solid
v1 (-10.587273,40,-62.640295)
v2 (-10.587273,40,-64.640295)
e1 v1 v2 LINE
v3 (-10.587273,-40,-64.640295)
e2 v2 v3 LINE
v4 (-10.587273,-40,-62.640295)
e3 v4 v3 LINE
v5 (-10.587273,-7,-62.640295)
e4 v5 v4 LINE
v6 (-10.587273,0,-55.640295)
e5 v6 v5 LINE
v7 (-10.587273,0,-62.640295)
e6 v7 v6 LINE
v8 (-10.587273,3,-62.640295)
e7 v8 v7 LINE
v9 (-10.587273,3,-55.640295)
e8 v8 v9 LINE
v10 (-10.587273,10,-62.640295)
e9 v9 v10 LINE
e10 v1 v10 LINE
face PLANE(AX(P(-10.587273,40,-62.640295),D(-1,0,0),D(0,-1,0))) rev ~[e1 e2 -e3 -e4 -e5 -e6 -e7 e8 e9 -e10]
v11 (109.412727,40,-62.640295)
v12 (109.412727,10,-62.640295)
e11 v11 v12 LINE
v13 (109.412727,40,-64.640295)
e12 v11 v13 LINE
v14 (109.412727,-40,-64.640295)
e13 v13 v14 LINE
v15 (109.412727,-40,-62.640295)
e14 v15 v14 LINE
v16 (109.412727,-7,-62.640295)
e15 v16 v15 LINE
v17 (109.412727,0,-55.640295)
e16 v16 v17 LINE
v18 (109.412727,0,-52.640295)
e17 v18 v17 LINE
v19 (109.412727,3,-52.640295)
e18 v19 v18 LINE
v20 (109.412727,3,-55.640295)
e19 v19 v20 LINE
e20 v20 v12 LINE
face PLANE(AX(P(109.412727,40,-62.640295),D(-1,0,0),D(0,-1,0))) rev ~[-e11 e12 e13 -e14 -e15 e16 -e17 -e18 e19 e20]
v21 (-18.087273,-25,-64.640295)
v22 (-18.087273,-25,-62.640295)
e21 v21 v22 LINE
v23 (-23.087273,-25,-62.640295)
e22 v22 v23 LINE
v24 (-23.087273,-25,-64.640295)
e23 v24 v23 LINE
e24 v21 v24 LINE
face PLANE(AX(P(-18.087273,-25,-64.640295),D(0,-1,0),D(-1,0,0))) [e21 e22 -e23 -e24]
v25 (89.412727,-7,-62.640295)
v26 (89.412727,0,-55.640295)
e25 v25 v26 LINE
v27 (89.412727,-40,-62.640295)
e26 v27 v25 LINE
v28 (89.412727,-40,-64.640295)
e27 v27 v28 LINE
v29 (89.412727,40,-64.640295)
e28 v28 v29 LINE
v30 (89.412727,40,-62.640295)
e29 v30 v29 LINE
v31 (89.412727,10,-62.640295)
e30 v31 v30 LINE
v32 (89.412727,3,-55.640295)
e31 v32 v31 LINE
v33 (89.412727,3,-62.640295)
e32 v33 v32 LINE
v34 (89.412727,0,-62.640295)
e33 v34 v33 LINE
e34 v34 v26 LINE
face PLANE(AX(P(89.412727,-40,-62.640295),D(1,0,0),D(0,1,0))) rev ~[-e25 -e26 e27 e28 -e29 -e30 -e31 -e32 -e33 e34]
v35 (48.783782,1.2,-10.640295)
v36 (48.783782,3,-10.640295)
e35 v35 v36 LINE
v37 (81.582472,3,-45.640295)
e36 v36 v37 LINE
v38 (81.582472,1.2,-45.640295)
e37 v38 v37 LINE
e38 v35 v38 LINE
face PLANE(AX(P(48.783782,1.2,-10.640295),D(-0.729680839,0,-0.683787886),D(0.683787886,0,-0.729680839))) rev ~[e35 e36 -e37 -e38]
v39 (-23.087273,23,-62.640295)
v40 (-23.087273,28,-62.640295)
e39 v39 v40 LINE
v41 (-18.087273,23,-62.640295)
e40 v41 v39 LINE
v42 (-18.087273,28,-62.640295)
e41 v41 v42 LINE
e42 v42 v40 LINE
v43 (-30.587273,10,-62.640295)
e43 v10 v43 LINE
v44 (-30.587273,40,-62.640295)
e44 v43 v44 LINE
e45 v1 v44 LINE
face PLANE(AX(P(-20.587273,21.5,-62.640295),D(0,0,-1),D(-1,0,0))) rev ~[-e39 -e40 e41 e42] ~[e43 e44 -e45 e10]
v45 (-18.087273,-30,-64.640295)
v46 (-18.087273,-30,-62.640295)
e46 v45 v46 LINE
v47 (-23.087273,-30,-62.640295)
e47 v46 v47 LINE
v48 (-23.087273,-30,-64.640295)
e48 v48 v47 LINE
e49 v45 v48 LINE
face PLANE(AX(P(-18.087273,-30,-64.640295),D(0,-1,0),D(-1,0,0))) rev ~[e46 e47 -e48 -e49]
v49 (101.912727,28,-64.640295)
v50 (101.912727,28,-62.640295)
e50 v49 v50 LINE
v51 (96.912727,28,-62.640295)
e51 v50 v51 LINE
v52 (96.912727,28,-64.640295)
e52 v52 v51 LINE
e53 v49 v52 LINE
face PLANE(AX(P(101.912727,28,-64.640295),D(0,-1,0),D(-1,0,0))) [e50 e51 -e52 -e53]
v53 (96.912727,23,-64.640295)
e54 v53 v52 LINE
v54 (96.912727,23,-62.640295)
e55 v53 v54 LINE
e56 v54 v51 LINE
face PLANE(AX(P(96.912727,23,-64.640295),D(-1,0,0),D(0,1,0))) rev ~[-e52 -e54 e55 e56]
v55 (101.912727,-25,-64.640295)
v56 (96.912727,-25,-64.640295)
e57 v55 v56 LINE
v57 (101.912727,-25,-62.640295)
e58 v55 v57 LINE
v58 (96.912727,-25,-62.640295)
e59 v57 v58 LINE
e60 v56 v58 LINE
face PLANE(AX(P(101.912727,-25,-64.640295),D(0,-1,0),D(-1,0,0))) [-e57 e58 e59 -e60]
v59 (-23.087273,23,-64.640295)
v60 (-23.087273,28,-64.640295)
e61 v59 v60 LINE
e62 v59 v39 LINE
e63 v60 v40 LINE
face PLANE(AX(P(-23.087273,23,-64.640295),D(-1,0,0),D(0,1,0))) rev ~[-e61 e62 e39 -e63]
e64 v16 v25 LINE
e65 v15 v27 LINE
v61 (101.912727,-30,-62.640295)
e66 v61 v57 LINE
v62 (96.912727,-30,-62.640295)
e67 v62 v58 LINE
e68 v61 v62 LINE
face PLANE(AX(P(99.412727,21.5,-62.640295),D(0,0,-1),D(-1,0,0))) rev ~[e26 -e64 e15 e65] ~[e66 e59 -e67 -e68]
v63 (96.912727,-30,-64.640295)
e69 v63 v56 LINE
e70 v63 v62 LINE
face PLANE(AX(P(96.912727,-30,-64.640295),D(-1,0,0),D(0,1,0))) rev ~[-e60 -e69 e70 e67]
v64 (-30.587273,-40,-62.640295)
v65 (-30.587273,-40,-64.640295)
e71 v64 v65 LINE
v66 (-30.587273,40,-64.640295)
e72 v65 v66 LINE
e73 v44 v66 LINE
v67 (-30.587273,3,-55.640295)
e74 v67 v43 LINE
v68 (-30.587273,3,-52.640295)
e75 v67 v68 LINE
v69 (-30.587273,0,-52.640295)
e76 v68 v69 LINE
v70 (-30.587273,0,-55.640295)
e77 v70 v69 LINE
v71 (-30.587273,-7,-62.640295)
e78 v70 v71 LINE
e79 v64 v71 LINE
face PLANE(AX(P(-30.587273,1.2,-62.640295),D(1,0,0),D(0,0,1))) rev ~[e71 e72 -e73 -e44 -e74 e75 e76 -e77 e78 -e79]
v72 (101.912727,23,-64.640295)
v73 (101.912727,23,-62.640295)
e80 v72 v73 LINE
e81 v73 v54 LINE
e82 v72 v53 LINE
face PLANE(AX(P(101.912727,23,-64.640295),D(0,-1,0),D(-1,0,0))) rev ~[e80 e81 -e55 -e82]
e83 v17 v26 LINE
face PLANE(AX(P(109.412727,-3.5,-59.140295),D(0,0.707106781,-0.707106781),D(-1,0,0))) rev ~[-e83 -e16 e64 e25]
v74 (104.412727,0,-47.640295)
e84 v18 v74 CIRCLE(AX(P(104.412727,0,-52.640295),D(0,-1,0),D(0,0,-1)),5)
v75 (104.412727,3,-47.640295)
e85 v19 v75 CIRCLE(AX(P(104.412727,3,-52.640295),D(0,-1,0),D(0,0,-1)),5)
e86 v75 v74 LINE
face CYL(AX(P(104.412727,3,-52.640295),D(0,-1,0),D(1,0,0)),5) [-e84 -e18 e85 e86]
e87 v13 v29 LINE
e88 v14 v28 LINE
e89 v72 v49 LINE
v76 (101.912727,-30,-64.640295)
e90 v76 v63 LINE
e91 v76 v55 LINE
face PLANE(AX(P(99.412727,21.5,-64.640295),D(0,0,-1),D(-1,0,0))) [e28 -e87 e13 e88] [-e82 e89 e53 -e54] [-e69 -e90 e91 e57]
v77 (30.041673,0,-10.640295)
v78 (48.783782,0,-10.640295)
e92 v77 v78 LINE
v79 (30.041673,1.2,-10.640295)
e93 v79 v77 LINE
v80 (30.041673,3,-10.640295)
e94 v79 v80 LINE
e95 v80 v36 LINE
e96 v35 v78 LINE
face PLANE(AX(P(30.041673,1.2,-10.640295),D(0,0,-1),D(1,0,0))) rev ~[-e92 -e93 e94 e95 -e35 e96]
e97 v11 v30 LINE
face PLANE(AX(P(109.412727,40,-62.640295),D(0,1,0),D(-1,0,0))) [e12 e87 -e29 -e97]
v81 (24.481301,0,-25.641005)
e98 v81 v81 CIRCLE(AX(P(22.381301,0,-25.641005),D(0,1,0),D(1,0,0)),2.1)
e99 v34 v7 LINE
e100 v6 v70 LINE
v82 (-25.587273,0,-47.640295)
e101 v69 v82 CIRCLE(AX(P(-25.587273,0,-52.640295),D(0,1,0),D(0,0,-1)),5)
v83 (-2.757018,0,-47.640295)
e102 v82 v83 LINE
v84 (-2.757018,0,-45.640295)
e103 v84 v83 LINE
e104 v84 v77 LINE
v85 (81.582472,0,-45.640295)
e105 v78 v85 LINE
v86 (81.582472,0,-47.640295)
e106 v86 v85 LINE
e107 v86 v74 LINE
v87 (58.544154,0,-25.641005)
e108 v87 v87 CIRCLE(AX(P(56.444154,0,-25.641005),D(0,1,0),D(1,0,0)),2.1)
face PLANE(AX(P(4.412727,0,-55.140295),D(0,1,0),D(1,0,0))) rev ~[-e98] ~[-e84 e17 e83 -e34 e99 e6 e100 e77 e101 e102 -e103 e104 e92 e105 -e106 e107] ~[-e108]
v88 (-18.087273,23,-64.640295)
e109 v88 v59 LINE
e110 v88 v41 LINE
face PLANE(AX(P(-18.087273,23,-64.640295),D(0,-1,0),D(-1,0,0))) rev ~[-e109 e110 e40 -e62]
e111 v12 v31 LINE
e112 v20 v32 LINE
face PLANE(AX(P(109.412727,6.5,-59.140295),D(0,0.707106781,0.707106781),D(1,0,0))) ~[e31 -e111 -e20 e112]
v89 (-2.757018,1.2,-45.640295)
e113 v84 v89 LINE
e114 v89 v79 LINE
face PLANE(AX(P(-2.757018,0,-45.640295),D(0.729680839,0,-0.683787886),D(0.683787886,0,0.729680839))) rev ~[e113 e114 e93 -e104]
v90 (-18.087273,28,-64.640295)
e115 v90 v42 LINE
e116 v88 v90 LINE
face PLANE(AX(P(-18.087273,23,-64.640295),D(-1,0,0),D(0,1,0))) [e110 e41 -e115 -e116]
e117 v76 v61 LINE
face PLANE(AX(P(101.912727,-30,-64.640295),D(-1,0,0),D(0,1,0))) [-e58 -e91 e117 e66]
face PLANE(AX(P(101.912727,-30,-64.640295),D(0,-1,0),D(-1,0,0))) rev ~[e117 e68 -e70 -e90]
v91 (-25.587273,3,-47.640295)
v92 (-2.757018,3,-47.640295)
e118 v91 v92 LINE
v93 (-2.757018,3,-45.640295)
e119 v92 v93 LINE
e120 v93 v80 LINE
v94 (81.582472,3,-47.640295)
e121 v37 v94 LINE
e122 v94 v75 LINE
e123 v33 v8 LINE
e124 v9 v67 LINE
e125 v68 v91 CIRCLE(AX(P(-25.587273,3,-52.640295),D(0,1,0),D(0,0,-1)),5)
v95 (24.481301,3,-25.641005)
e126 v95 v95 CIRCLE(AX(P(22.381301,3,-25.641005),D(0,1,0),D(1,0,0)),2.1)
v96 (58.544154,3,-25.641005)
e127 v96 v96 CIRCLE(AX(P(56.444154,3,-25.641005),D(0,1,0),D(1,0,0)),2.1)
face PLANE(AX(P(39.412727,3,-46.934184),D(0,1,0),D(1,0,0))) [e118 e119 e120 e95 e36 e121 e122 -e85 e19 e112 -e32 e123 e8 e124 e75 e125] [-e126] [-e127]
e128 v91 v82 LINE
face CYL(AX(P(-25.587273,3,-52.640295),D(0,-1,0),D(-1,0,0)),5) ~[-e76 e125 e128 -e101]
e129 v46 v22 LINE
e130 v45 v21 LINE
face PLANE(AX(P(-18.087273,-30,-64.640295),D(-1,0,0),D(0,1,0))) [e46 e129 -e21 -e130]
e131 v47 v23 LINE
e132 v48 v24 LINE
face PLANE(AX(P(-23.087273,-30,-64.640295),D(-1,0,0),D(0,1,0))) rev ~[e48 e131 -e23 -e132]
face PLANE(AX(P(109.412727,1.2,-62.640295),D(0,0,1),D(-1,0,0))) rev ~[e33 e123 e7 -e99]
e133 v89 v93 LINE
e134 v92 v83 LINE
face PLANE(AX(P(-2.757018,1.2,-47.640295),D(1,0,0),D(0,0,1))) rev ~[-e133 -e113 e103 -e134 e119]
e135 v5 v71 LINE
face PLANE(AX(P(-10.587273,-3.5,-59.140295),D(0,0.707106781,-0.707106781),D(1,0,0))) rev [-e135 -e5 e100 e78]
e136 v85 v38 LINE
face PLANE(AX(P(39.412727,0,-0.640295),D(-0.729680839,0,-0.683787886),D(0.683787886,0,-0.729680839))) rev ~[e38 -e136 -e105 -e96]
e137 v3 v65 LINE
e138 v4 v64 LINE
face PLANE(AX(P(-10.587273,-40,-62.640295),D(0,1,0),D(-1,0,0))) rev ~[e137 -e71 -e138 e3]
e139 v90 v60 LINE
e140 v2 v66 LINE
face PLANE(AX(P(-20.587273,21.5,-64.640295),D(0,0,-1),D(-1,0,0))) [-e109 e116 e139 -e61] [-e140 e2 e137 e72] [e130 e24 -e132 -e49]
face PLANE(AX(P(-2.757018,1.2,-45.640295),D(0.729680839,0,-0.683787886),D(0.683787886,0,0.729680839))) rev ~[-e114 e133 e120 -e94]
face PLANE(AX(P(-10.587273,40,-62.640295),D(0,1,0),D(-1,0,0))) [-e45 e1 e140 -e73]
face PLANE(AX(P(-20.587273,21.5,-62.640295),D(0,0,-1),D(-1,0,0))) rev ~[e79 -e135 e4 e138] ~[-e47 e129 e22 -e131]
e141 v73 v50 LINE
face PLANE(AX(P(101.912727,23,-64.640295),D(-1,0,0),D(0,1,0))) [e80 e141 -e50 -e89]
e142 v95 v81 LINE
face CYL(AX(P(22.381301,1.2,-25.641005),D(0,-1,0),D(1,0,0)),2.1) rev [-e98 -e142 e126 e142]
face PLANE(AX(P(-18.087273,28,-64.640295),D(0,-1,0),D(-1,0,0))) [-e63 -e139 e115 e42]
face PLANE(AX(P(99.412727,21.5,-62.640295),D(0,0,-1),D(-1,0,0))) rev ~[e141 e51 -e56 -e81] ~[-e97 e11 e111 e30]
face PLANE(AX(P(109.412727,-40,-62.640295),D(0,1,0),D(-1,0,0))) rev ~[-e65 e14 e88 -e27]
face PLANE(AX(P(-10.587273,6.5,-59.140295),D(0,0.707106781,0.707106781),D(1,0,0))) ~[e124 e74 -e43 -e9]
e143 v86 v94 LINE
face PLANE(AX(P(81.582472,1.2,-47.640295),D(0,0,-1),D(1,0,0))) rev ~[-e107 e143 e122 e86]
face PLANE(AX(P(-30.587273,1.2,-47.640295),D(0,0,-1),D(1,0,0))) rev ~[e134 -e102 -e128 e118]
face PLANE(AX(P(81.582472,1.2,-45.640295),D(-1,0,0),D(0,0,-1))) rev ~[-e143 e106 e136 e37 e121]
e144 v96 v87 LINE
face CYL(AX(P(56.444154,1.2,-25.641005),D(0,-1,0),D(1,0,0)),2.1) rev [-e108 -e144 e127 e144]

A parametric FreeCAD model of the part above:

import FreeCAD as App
import Part
import Sketcher


def edges_at(feature, points):
    """Names of the edges that pass closest to the given points."""
    edges = feature.Shape.Edges
    near = lambda p: min(range(len(edges)), key=lambda i: edges[i].distToShape(Part.Vertex(*p))[0])
    return sorted({f"Edge{near(p) + 1}" for p in points})

doc = App.newDocument("Part")
body = doc.addObject("PartDesign::Body", "Body")

# Sketch on XZ plane
sketch1 = doc.addObject("Sketcher::SketchObject", "Sketch")
body.addObject(sketch1)
sketch1.AttachmentSupport = (doc.XZ_Plane, [""])
sketch1.MapMode = "FlatFace"
sketch1.addGeometry(Part.LineSegment(App.Vector(-2.757018, -47.640295, 0), App.Vector(-2.757018, -45.640295, 0)), False)
sketch1.addGeometry(Part.LineSegment(App.Vector(-2.757018, -45.640295, 0), App.Vector(39.412727, -0.640295, 0)), False)
sketch1.addGeometry(Part.LineSegment(App.Vector(39.412727, -0.640295, 0), App.Vector(81.582472, -45.640295, 0)), False)
sketch1.addGeometry(Part.LineSegment(App.Vector(81.582472, -45.640295, 0), App.Vector(81.582472, -47.640295, 0)), False)
sketch1.addGeometry(Part.LineSegment(App.Vector(81.582472, -47.640295, 0), App.Vector(-2.757018, -47.640295, 0)), False)
sketch1.addGeometry(Part.Circle(App.Vector(22.381301, -25.641005, 0), App.Vector(0, 0, 1), 2.1), False)
sketch1.addGeometry(Part.Circle(App.Vector(56.444154, -25.641005, 0), App.Vector(0, 0, 1), 2.1), False)
sketch1.addConstraint(Sketcher.Constraint("Coincident", 0, 2, 1, 1))
sketch1.addConstraint(Sketcher.Constraint("Coincident", 1, 2, 2, 1))
sketch1.addConstraint(Sketcher.Constraint("Coincident", 2, 2, 3, 1))
sketch1.addConstraint(Sketcher.Constraint("Coincident", 3, 2, 4, 1))
sketch1.addConstraint(Sketcher.Constraint("Coincident", 4, 2, 0, 1))
sketch1.addConstraint(Sketcher.Constraint("Vertical", 0))
sketch1.addConstraint(Sketcher.Constraint("Vertical", 3))
sketch1.addConstraint(Sketcher.Constraint("Horizontal", 4))
sketch1.addConstraint(Sketcher.Constraint("Equal", 5, 6))
sketch1.addConstraint(Sketcher.Constraint("Horizontal", 5, 3, 6, 3))
sketch1.addConstraint(Sketcher.Constraint("Horizontal", 0, 2, 2, 2))
sketch1.addConstraint(Sketcher.Constraint("Equal", 1, 2))
sketch1.addConstraint(Sketcher.Constraint("Diameter", 5, 4.2))
sketch1.addConstraint(Sketcher.Constraint("DistanceY", 0, 1, 0, 2, 2.0))
sketch1.addConstraint(Sketcher.Constraint("DistanceY", 0, 2, 1, 2, 45.0))
sketch1.addConstraint(Sketcher.Constraint("Distance", 1, 61.670799))
sketch1.addConstraint(Sketcher.Constraint("DistanceX", -1, 1, 5, 3, 22.381301))
sketch1.addConstraint(Sketcher.Constraint("DistanceX", 0, 2, 5, 3, 25.138318))
sketch1.addConstraint(Sketcher.Constraint("DistanceY", 0, 2, 5, 3, 19.99929))
sketch1.addConstraint(Sketcher.Constraint("DistanceX", 0, 2, 6, 3, 59.201172))
sketch1.addConstraint(Sketcher.Constraint("DistanceY", 5, 3, -1, 1, 25.641005))
pad1 = doc.addObject("PartDesign::Pad", "Pad")
body.addObject(pad1)
pad1.Profile = sketch1
pad1.Length = 1.2
pad1.Reversed = True

# Sketch on XZ plane
sketch2 = doc.addObject("Sketcher::SketchObject", "Sketch001")
body.addObject(sketch2)
sketch2.AttachmentSupport = (doc.XZ_Plane, [""])
sketch2.MapMode = "FlatFace"
sketch2.addGeometry(Part.LineSegment(App.Vector(81.582472, -47.640295, 0), App.Vector(81.582472, -45.640295, 0)), False)
sketch2.addGeometry(Part.LineSegment(App.Vector(81.582472, -45.640295, 0), App.Vector(-2.757018, -45.640295, 0)), False)
sketch2.addGeometry(Part.LineSegment(App.Vector(-2.757018, -45.640295, 0), App.Vector(-2.757018, -47.640295, 0)), False)
sketch2.addGeometry(Part.LineSegment(App.Vector(-2.757018, -47.640295, 0), App.Vector(81.582472, -47.640295, 0)), False)
sketch2.addConstraint(Sketcher.Constraint("Coincident", 0, 2, 1, 1))
sketch2.addConstraint(Sketcher.Constraint("Coincident", 1, 2, 2, 1))
sketch2.addConstraint(Sketcher.Constraint("Coincident", 2, 2, 3, 1))
sketch2.addConstraint(Sketcher.Constraint("Coincident", 3, 2, 0, 1))
sketch2.addConstraint(Sketcher.Constraint("Vertical", 0))
sketch2.addConstraint(Sketcher.Constraint("Horizontal", 1))
sketch2.addConstraint(Sketcher.Constraint("Vertical", 2))
sketch2.addConstraint(Sketcher.Constraint("Horizontal", 3))
sketch2.addConstraint(Sketcher.Constraint("DistanceY", 0, 1, 0, 2, 2.0))
sketch2.addConstraint(Sketcher.Constraint("DistanceX", 1, 2, 1, 1, 84.33949))
sketch2.addConstraint(Sketcher.Constraint("DistanceX", -1, 1, 0, 2, 81.582472))
sketch2.addConstraint(Sketcher.Constraint("DistanceY", 0, 2, -1, 1, 45.640295))
pad2 = doc.addObject("PartDesign::Pad", "Pad001")
body.addObject(pad2)
pad2.Profile = sketch2
pad2.Length = 2.4

# Sketch on XZ plane
sketch3 = doc.addObject("Sketcher::SketchObject", "Sketch002")
body.addObject(sketch3)
sketch3.AttachmentSupport = (doc.XZ_Plane, [""])
sketch3.MapMode = "FlatFace"
sketch3.AttachmentOffset = App.Placement(App.Vector(0, 0, 2.4), App.Rotation())
sketch3.addGeometry(Part.LineSegment(App.Vector(-2.757018, -47.640295, 0), App.Vector(81.582472, -47.640295, 0)), False)
sketch3.addGeometry(Part.LineSegment(App.Vector(81.582472, -47.640295, 0), App.Vector(81.582472, -45.640295, 0)), False)
sketch3.addGeometry(Part.LineSegment(App.Vector(81.582472, -45.640295, 0), App.Vector(39.412727, -0.640295, 0)), False)
sketch3.addGeometry(Part.LineSegment(App.Vector(39.412727, -0.640295, 0), App.Vector(-2.757018, -45.640295, 0)), False)
sketch3.addGeometry(Part.LineSegment(App.Vector(-2.757018, -45.640295, 0), App.Vector(-2.757018, -47.640295, 0)), False)
sketch3.addGeometry(Part.Circle(App.Vector(56.444154, -25.641005, 0), App.Vector(0, 0, 1), 2.1), False)
sketch3.addGeometry(Part.Circle(App.Vector(22.381301, -25.641005, 0), App.Vector(0, 0, 1), 2.1), False)
sketch3.addConstraint(Sketcher.Constraint("Coincident", 0, 2, 1, 1))
sketch3.addConstraint(Sketcher.Constraint("Coincident", 1, 2, 2, 1))
sketch3.addConstraint(Sketcher.Constraint("Coincident", 2, 2, 3, 1))
sketch3.addConstraint(Sketcher.Constraint("Coincident", 3, 2, 4, 1))
sketch3.addConstraint(Sketcher.Constraint("Coincident", 4, 2, 0, 1))
sketch3.addConstraint(Sketcher.Constraint("Horizontal", 0))
sketch3.addConstraint(Sketcher.Constraint("Vertical", 1))
sketch3.addConstraint(Sketcher.Constraint("Vertical", 4))
sketch3.addConstraint(Sketcher.Constraint("Equal", 5, 6))
sketch3.addConstraint(Sketcher.Constraint("Horizontal", 5, 3, 6, 3))
sketch3.addConstraint(Sketcher.Constraint("Horizontal", 1, 2, 3, 2))
sketch3.addConstraint(Sketcher.Constraint("Equal", 2, 3))
sketch3.addConstraint(Sketcher.Constraint("Diameter", 5, 4.2))
sketch3.addConstraint(Sketcher.Constraint("DistanceY", 1, 1, 1, 2, 2.0))
sketch3.addConstraint(Sketcher.Constraint("DistanceY", 1, 2, 2, 2, 45.0))
sketch3.addConstraint(Sketcher.Constraint("Distance", 2, 61.670799))
sketch3.addConstraint(Sketcher.Constraint("DistanceX", -1, 1, 6, 3, 22.381301))
sketch3.addConstraint(Sketcher.Constraint("DistanceX", 5, 3, 0, 2, 25.138318))
sketch3.addConstraint(Sketcher.Constraint("DistanceY", 0, 2, 5, 3, 21.99929))
sketch3.addConstraint(Sketcher.Constraint("DistanceX", 6, 3, 0, 2, 59.201172))
sketch3.addConstraint(Sketcher.Constraint("DistanceY", 5, 3, -1, 1, 25.641005))
pad3 = doc.addObject("PartDesign::Pad", "Pad002")
body.addObject(pad3)
pad3.Profile = sketch3
pad3.Length = 1.2

# Sketch on XZ plane
sketch4 = doc.addObject("Sketcher::SketchObject", "Sketch003")
body.addObject(sketch4)
sketch4.AttachmentSupport = (doc.XZ_Plane, [""])
sketch4.MapMode = "FlatFace"
sketch4.AttachmentOffset = App.Placement(App.Vector(0, 0, 3.6), App.Rotation())
sketch4.addGeometry(Part.LineSegment(App.Vector(88.819585, -55.471178, 0), App.Vector(88.819585, 5.18127, 0)), False)
sketch4.addGeometry(Part.LineSegment(App.Vector(88.819585, 5.18127, 0), App.Vector(-15.248217, 5.18127, 0)), False)
sketch4.addGeometry(Part.LineSegment(App.Vector(-15.248217, 5.18127, 0), App.Vector(-15.248217, -55.471178, 0)), False)
sketch4.addGeometry(Part.LineSegment(App.Vector(-15.248217, -55.471178, 0), App.Vector(88.819585, -55.471178, 0)), False)
sketch4.addConstraint(Sketcher.Constraint("Coincident", 0, 2, 1, 1))
sketch4.addConstraint(Sketcher.Constraint("Coincident", 1, 2, 2, 1))
sketch4.addConstraint(Sketcher.Constraint("Coincident", 2, 2, 3, 1))
sketch4.addConstraint(Sketcher.Constraint("Coincident", 3, 2, 0, 1))
sketch4.addConstraint(Sketcher.Constraint("Vertical", 0))
sketch4.addConstraint(Sketcher.Constraint("Horizontal", 1))
sketch4.addConstraint(Sketcher.Constraint("Vertical", 2))
sketch4.addConstraint(Sketcher.Constraint("Horizontal", 3))
sketch4.addConstraint(Sketcher.Constraint("DistanceX", 1, 2, 1, 1, 104.067802))
sketch4.addConstraint(Sketcher.Constraint("DistanceY", 0, 1, 0, 2, 60.652448))
sketch4.addConstraint(Sketcher.Constraint("DistanceY", -1, 1, 0, 2, 5.18127))
sketch4.addConstraint(Sketcher.Constraint("DistanceX", -1, 1, 0, 2, 88.819585))
pocket1 = doc.addObject("PartDesign::Pocket", "Pocket")
body.addObject(pocket1)
pocket1.Profile = sketch4
pocket1.Length = 3.6

# Sketch on XZ plane
sketch5 = doc.addObject("Sketcher::SketchObject", "Sketch004")
body.addObject(sketch5)
sketch5.AttachmentSupport = (doc.XZ_Plane, [""])
sketch5.MapMode = "FlatFace"
sketch5.AttachmentOffset = App.Placement(App.Vector(0, 0, -1.2), App.Rotation())
sketch5.addGeometry(Part.LineSegment(App.Vector(-30.587273, -62.640295, 0), App.Vector(-30.587273, -47.640295, 0)), False)
sketch5.addGeometry(Part.LineSegment(App.Vector(-30.587273, -47.640295, 0), App.Vector(109.412727, -47.640295, 0)), False)
sketch5.addGeometry(Part.LineSegment(App.Vector(109.412727, -47.640295, 0), App.Vector(109.412727, -62.640295, 0)), False)
sketch5.addGeometry(Part.LineSegment(App.Vector(109.412727, -62.640295, 0), App.Vector(-30.587273, -62.640295, 0)), False)
sketch5.addConstraint(Sketcher.Constraint("Coincident", 0, 2, 1, 1))
sketch5.addConstraint(Sketcher.Constraint("Coincident", 1, 2, 2, 1))
sketch5.addConstraint(Sketcher.Constraint("Coincident", 2, 2, 3, 1))
sketch5.addConstraint(Sketcher.Constraint("Coincident", 3, 2, 0, 1))
sketch5.addConstraint(Sketcher.Constraint("Vertical", 0))
sketch5.addConstraint(Sketcher.Constraint("Horizontal", 1))
sketch5.addConstraint(Sketcher.Constraint("Vertical", 2))
sketch5.addConstraint(Sketcher.Constraint("Horizontal", 3))
sketch5.addConstraint(Sketcher.Constraint("DistanceX", 1, 1, 1, 2, 140.0))
sketch5.addConstraint(Sketcher.Constraint("DistanceY", 0, 1, 0, 2, 15.0))
sketch5.addConstraint(Sketcher.Constraint("DistanceX", 0, 2, -1, 1, 30.587273))
sketch5.addConstraint(Sketcher.Constraint("DistanceY", 0, 2, -1, 1, 47.640295))
pad4 = doc.addObject("PartDesign::Pad", "Pad003")
body.addObject(pad4)
pad4.Profile = sketch5
pad4.Length = 1.2

# Sketch on XZ plane
sketch6 = doc.addObject("Sketcher::SketchObject", "Sketch005")
body.addObject(sketch6)
sketch6.AttachmentSupport = (doc.XZ_Plane, [""])
sketch6.MapMode = "FlatFace"
sketch6.AttachmentOffset = App.Placement(App.Vector(0, 0, -1.2), App.Rotation())
sketch6.addGeometry(Part.LineSegment(App.Vector(48.783782, -10.640295, 0), App.Vector(30.041673, -10.640295, 0)), False)
sketch6.addGeometry(Part.LineSegment(App.Vector(30.041673, -10.640295, 0), App.Vector(39.412727, -0.640295, 0)), False)
sketch6.addGeometry(Part.LineSegment(App.Vector(39.412727, -0.640295, 0), App.Vector(48.783782, -10.640295, 0)), False)
sketch6.addConstraint(Sketcher.Constraint("Coincident", 0, 2, 1, 1))
sketch6.addConstraint(Sketcher.Constraint("Coincident", 1, 2, 2, 1))
sketch6.addConstraint(Sketcher.Constraint("Coincident", 2, 2, 0, 1))
sketch6.addConstraint(Sketcher.Constraint("Horizontal", 0))
sketch6.addConstraint(Sketcher.Constraint("Equal", 1, 2))
sketch6.addConstraint(Sketcher.Constraint("DistanceY", 0, 2, 1, 2, 10.0))
sketch6.addConstraint(Sketcher.Constraint("DistanceX", 0, 2, 0, 1, 18.742109))
sketch6.addConstraint(Sketcher.Constraint("DistanceX", -1, 1, 2, 2, 48.783782))
sketch6.addConstraint(Sketcher.Constraint("DistanceY", 0, 2, -1, 1, 10.640295))
pocket2 = doc.addObject("PartDesign::Pocket", "Pocket001")
body.addObject(pocket2)
pocket2.Profile = sketch6
pocket2.Length = 10
pocket2.Reversed = True

# Sketch on XZ plane
sketch7 = doc.addObject("Sketcher::SketchObject", "Sketch006")
body.addObject(sketch7)
sketch7.AttachmentSupport = (doc.XZ_Plane, [""])
sketch7.MapMode = "FlatFace"
sketch7.AttachmentOffset = App.Placement(App.Vector(0, 0, -1.2), App.Rotation())
sketch7.addGeometry(Part.LineSegment(App.Vector(-2.757018, -47.640295, 0), App.Vector(-2.757018, -45.640295, 0)), False)
sketch7.addGeometry(Part.LineSegment(App.Vector(-2.757018, -45.640295, 0), App.Vector(30.041673, -10.640295, 0)), False)
sketch7.addGeometry(Part.LineSegment(App.Vector(30.041673, -10.640295, 0), App.Vector(48.783782, -10.640295, 0)), False)
sketch7.addGeometry(Part.LineSegment(App.Vector(48.783782, -10.640295, 0), App.Vector(81.582472, -45.640295, 0)), False)
sketch7.addGeometry(Part.LineSegment(App.Vector(81.582472, -45.640295, 0), App.Vector(81.582472, -47.640295, 0)), False)
sketch7.addGeometry(Part.LineSegment(App.Vector(81.582472, -47.640295, 0), App.Vector(109.412727, -47.640295, 0)), False)
sketch7.addGeometry(Part.LineSegment(App.Vector(109.412727, -47.640295, 0), App.Vector(109.412727, -62.640295, 0)), False)
sketch7.addGeometry(Part.LineSegment(App.Vector(109.412727, -62.640295, 0), App.Vector(-30.587273, -62.640295, 0)), False)
sketch7.addGeometry(Part.LineSegment(App.Vector(-30.587273, -62.640295, 0), App.Vector(-30.587273, -47.640295, 0)), False)
sketch7.addGeometry(Part.LineSegment(App.Vector(-30.587273, -47.640295, 0), App.Vector(-2.757018, -47.640295, 0)), False)
sketch7.addGeometry(Part.Circle(App.Vector(22.381301, -25.641005, 0), App.Vector(0, 0, 1), 2.1), False)
sketch7.addGeometry(Part.Circle(App.Vector(56.444154, -25.641005, 0), App.Vector(0, 0, 1), 2.1), False)
sketch7.addConstraint(Sketcher.Constraint("Coincident", 0, 2, 1, 1))
sketch7.addConstraint(Sketcher.Constraint("Coincident", 1, 2, 2, 1))
sketch7.addConstraint(Sketcher.Constraint("Coincident", 2, 2, 3, 1))
sketch7.addConstraint(Sketcher.Constraint("Coincident", 3, 2, 4, 1))
sketch7.addConstraint(Sketcher.Constraint("Coincident", 4, 2, 5, 1))
sketch7.addConstraint(Sketcher.Constraint("Coincident", 5, 2, 6, 1))
sketch7.addConstraint(Sketcher.Constraint("Coincident", 6, 2, 7, 1))
sketch7.addConstraint(Sketcher.Constraint("Coincident", 7, 2, 8, 1))
sketch7.addConstraint(Sketcher.Constraint("Coincident", 8, 2, 9, 1))
sketch7.addConstraint(Sketcher.Constraint("Coincident", 9, 2, 0, 1))
sketch7.addConstraint(Sketcher.Constraint("Vertical", 0))
sketch7.addConstraint(Sketcher.Constraint("Horizontal", 2))
sketch7.addConstraint(Sketcher.Constraint("Vertical", 4))
sketch7.addConstraint(Sketcher.Constraint("Horizontal", 5))
sketch7.addConstraint(Sketcher.Constraint("Vertical", 6))
sketch7.addConstraint(Sketcher.Constraint("Horizontal", 7))
sketch7.addConstraint(Sketcher.Constraint("Vertical", 8))
sketch7.addConstraint(Sketcher.Constraint("Horizontal", 9))
sketch7.addConstraint(Sketcher.Constraint("Equal", 10, 11))
sketch7.addConstraint(Sketcher.Constraint("Horizontal", 10, 3, 11, 3))
sketch7.addConstraint(Sketcher.Constraint("Horizontal", 0, 2, 3, 2))
sketch7.addConstraint(Sketcher.Constraint("Horizontal", 5, 2, 8, 2))
sketch7.addConstraint(Sketcher.Constraint("Equal", 5, 9))
sketch7.addConstraint(Sketcher.Constraint("Equal", 1, 3))
sketch7.addConstraint(Sketcher.Constraint("Diameter", 10, 4.2))
sketch7.addConstraint(Sketcher.Constraint("DistanceX", 7, 2, 7, 1, 140.0))
sketch7.addConstraint(Sketcher.Constraint("DistanceY", 0, 1, 0, 2, 2.0))
sketch7.addConstraint(Sketcher.Constraint("DistanceY", 6, 2, 6, 1, 15.0))
sketch7.addConstraint(Sketcher.Constraint("DistanceY", 0, 2, 1, 2, 35.0))
sketch7.addConstraint(Sketcher.Constraint("DistanceX", 2, 1, 2, 2, 18.742109))
sketch7.addConstraint(Sketcher.Constraint("DistanceX", -1, 1, 10, 3, 22.381301))
sketch7.addConstraint(Sketcher.Constraint("DistanceX", 0, 2, 2, 2, 51.540799))
sketch7.addConstraint(Sketcher.Constraint("DistanceX", -1, 1, 2, 2, 48.783782))
sketch7.addConstraint(Sketcher.Constraint("DistanceY", 0, 2, 10, 3, 19.99929))
sketch7.addConstraint(Sketcher.Constraint("DistanceX", 0, 2, 11, 3, 59.201172))
sketch7.addConstraint(Sketcher.Constraint("DistanceY", 10, 3, -1, 1, 25.641005))
pad5 = doc.addObject("PartDesign::Pad", "Pad004")
body.addObject(pad5)
pad5.Profile = sketch7
pad5.Length = 1.8
pad5.Reversed = True

# Sketch on XY plane
sketch8 = doc.addObject("Sketcher::SketchObject", "Sketch007")
body.addObject(sketch8)
sketch8.AttachmentSupport = (doc.XY_Plane, [""])
sketch8.MapMode = "FlatFace"
sketch8.AttachmentOffset = App.Placement(App.Vector(0, 0, -62.640295), App.Rotation())
sketch8.addGeometry(Part.LineSegment(App.Vector(109.412727, 40, 0), App.Vector(109.412727, -40, 0)), False)
sketch8.addGeometry(Part.LineSegment(App.Vector(109.412727, -40, 0), App.Vector(89.412727, -40, 0)), False)
sketch8.addGeometry(Part.LineSegment(App.Vector(89.412727, -40, 0), App.Vector(89.412727, 40, 0)), False)
sketch8.addGeometry(Part.LineSegment(App.Vector(89.412727, 40, 0), App.Vector(109.412727, 40, 0)), False)
sketch8.addGeometry(Part.LineSegment(App.Vector(-10.587273, 40, 0), App.Vector(-10.587273, -40, 0)), False)
sketch8.addGeometry(Part.LineSegment(App.Vector(-10.587273, -40, 0), App.Vector(-30.587273, -40, 0)), False)
sketch8.addGeometry(Part.LineSegment(App.Vector(-30.587273, -40, 0), App.Vector(-30.587273, 40, 0)), False)
sketch8.addGeometry(Part.LineSegment(App.Vector(-30.587273, 40, 0), App.Vector(-10.587273, 40, 0)), False)
sketch8.addConstraint(Sketcher.Constraint("Coincident", 0, 2, 1, 1))
sketch8.addConstraint(Sketcher.Constraint("Coincident", 1, 2, 2, 1))
sketch8.addConstraint(Sketcher.Constraint("Coincident", 2, 2, 3, 1))
sketch8.addConstraint(Sketcher.Constraint("Coincident", 3, 2, 0, 1))
sketch8.addConstraint(Sketcher.Constraint("Coincident", 4, 2, 5, 1))
sketch8.addConstraint(Sketcher.Constraint("Coincident", 5, 2, 6, 1))
sketch8.addConstraint(Sketcher.Constraint("Coincident", 6, 2, 7, 1))
sketch8.addConstraint(Sketcher.Constraint("Coincident", 7, 2, 4, 1))
sketch8.addConstraint(Sketcher.Constraint("Vertical", 0))
sketch8.addConstraint(Sketcher.Constraint("Horizontal", 1))
sketch8.addConstraint(Sketcher.Constraint("Vertical", 2))
sketch8.addConstraint(Sketcher.Constraint("Horizontal", 3))
sketch8.addConstraint(Sketcher.Constraint("Vertical", 4))
sketch8.addConstraint(Sketcher.Constraint("Horizontal", 5))
sketch8.addConstraint(Sketcher.Constraint("Vertical", 6))
sketch8.addConstraint(Sketcher.Constraint("Horizontal", 7))
sketch8.addConstraint(Sketcher.Constraint("Horizontal", 1, 2, 4, 2))
sketch8.addConstraint(Sketcher.Constraint("Horizontal", 3, 2, 6, 2))
sketch8.addConstraint(Sketcher.Constraint("Equal", 3, 5))
sketch8.addConstraint(Sketcher.Constraint("DistanceX", 1, 2, 1, 1, 20.0))
sketch8.addConstraint(Sketcher.Constraint("DistanceY", 0, 2, 0, 1, 80.0))
sketch8.addConstraint(Sketcher.Constraint("DistanceY", 0, 2, -1, 1, 40.0))
sketch8.addConstraint(Sketcher.Constraint("DistanceX", 4, 2, 1, 2, 100.0))
sketch8.addConstraint(Sketcher.Constraint("DistanceX", -1, 1, 0, 2, 109.412727))
pad6 = doc.addObject("PartDesign::Pad", "Pad005")
body.addObject(pad6)
pad6.Profile = sketch8
pad6.Length = 2
pad6.Reversed = True

# Sketch on XY plane
sketch9 = doc.addObject("Sketcher::SketchObject", "Sketch008")
body.addObject(sketch9)
sketch9.AttachmentSupport = (doc.XY_Plane, [""])
sketch9.MapMode = "FlatFace"
sketch9.AttachmentOffset = App.Placement(App.Vector(0, 0, -64.640295), App.Rotation())
sketch9.addGeometry(Part.LineSegment(App.Vector(101.912727, 28, 0), App.Vector(101.912727, 23, 0)), False)
sketch9.addGeometry(Part.LineSegment(App.Vector(101.912727, 23, 0), App.Vector(96.912727, 23, 0)), False)
sketch9.addGeometry(Part.LineSegment(App.Vector(96.912727, 23, 0), App.Vector(96.912727, 28, 0)), False)
sketch9.addGeometry(Part.LineSegment(App.Vector(96.912727, 28, 0), App.Vector(101.912727, 28, 0)), False)
sketch9.addGeometry(Part.LineSegment(App.Vector(101.912727, -25, 0), App.Vector(101.912727, -30, 0)), False)
sketch9.addGeometry(Part.LineSegment(App.Vector(101.912727, -30, 0), App.Vector(96.912727, -30, 0)), False)
sketch9.addGeometry(Part.LineSegment(App.Vector(96.912727, -30, 0), App.Vector(96.912727, -25, 0)), False)
sketch9.addGeometry(Part.LineSegment(App.Vector(96.912727, -25, 0), App.Vector(101.912727, -25, 0)), False)
sketch9.addGeometry(Part.LineSegment(App.Vector(-18.087273, -25, 0), App.Vector(-18.087273, -30, 0)), False)
sketch9.addGeometry(Part.LineSegment(App.Vector(-18.087273, -30, 0), App.Vector(-23.087273, -30, 0)), False)
sketch9.addGeometry(Part.LineSegment(App.Vector(-23.087273, -30, 0), App.Vector(-23.087273, -25, 0)), False)
sketch9.addGeometry(Part.LineSegment(App.Vector(-23.087273, -25, 0), App.Vector(-18.087273, -25, 0)), False)
sketch9.addGeometry(Part.LineSegment(App.Vector(-18.087273, 28, 0), App.Vector(-18.087273, 23, 0)), False)
sketch9.addGeometry(Part.LineSegment(App.Vector(-18.087273, 23, 0), App.Vector(-23.087273, 23, 0)), False)
sketch9.addGeometry(Part.LineSegment(App.Vector(-23.087273, 23, 0), App.Vector(-23.087273, 28, 0)), False)
sketch9.addGeometry(Part.LineSegment(App.Vector(-23.087273, 28, 0), App.Vector(-18.087273, 28, 0)), False)
sketch9.addConstraint(Sketcher.Constraint("Coincident", 0, 2, 1, 1))
sketch9.addConstraint(Sketcher.Constraint("Coincident", 1, 2, 2, 1))
sketch9.addConstraint(Sketcher.Constraint("Coincident", 2, 2, 3, 1))
sketch9.addConstraint(Sketcher.Constraint("Coincident", 3, 2, 0, 1))
sketch9.addConstraint(Sketcher.Constraint("Coincident", 4, 2, 5, 1))
sketch9.addConstraint(Sketcher.Constraint("Coincident", 5, 2, 6, 1))
sketch9.addConstraint(Sketcher.Constraint("Coincident", 6, 2, 7, 1))
sketch9.addConstraint(Sketcher.Constraint("Coincident", 7, 2, 4, 1))
sketch9.addConstraint(Sketcher.Constraint("Coincident", 8, 2, 9, 1))
sketch9.addConstraint(Sketcher.Constraint("Coincident", 9, 2, 10, 1))
sketch9.addConstraint(Sketcher.Constraint("Coincident", 10, 2, 11, 1))
sketch9.addConstraint(Sketcher.Constraint("Coincident", 11, 2, 8, 1))
sketch9.addConstraint(Sketcher.Constraint("Coincident", 12, 2, 13, 1))
sketch9.addConstraint(Sketcher.Constraint("Coincident", 13, 2, 14, 1))
sketch9.addConstraint(Sketcher.Constraint("Coincident", 14, 2, 15, 1))
sketch9.addConstraint(Sketcher.Constraint("Coincident", 15, 2, 12, 1))
sketch9.addConstraint(Sketcher.Constraint("Vertical", 0))
sketch9.addConstraint(Sketcher.Constraint("Horizontal", 1))
sketch9.addConstraint(Sketcher.Constraint("Vertical", 2))
sketch9.addConstraint(Sketcher.Constraint("Horizontal", 3))
sketch9.addConstraint(Sketcher.Constraint("Vertical", 4))
sketch9.addConstraint(Sketcher.Constraint("Horizontal", 5))
sketch9.addConstraint(Sketcher.Constraint("Vertical", 6))
sketch9.addConstraint(Sketcher.Constraint("Horizontal", 7))
sketch9.addConstraint(Sketcher.Constraint("Vertical", 8))
sketch9.addConstraint(Sketcher.Constraint("Horizontal", 9))
sketch9.addConstraint(Sketcher.Constraint("Vertical", 10))
sketch9.addConstraint(Sketcher.Constraint("Horizontal", 11))
sketch9.addConstraint(Sketcher.Constraint("Vertical", 12))
sketch9.addConstraint(Sketcher.Constraint("Horizontal", 13))
sketch9.addConstraint(Sketcher.Constraint("Vertical", 14))
sketch9.addConstraint(Sketcher.Constraint("Horizontal", 15))
sketch9.addConstraint(Sketcher.Constraint("Horizontal", 5, 2, 8, 2))
sketch9.addConstraint(Sketcher.Constraint("Horizontal", 7, 2, 10, 2))
sketch9.addConstraint(Sketcher.Constraint("Horizontal", 1, 2, 12, 2))
sketch9.addConstraint(Sketcher.Constraint("Horizontal", 3, 2, 14, 2))
sketch9.addConstraint(Sketcher.Constraint("Vertical", 3, 2, 4, 2))
sketch9.addConstraint(Sketcher.Constraint("Vertical", 2, 2, 5, 2))
sketch9.addConstraint(Sketcher.Constraint("Vertical", 11, 2, 12, 2))
sketch9.addConstraint(Sketcher.Constraint("Vertical", 10, 2, 13, 2))
sketch9.addConstraint(Sketcher.Constraint("Equal", 7, 9))
sketch9.addConstraint(Sketcher.Constraint("Equal", 15, 0))
sketch9.addConstraint(Sketcher.Constraint("Equal", 2, 4))
sketch9.addConstraint(Sketcher.Constraint("DistanceX", 1, 2, 1, 1, 5.0))
sketch9.addConstraint(Sketcher.Constraint("DistanceY", -1, 1, 0, 2, 23.0))
sketch9.addConstraint(Sketcher.Constraint("DistanceY", 4, 2, -1, 1, 30.0))
sketch9.addConstraint(Sketcher.Constraint("DistanceX", 8, 2, 5, 2, 115.0))
sketch9.addConstraint(Sketcher.Constraint("DistanceX", -1, 1, 0, 2, 101.912727))
pocket3 = doc.addObject("PartDesign::Pocket", "Pocket002")
body.addObject(pocket3)
pocket3.Profile = sketch9
pocket3.Length = 22
pocket3.Reversed = True
doc.recompute()

chamfer = doc.addObject("PartDesign::Chamfer", "Chamfer")
body.addObject(chamfer)
chamfer.Base = (pocket3, edges_at(pocket3, [
    (-20.587, 0, -62.64),
    (99.413, 3, -62.64),
    (99.413, 0, -62.64),
    (-20.587, 3, -62.64),
]))
chamfer.Size = 7
doc.recompute()

fillet = doc.addObject("PartDesign::Fillet", "Fillet")
body.addObject(fillet)
fillet.Base = (chamfer, edges_at(chamfer, [(109.413, 1.5, -47.64), (-30.587, 1.5, -47.64)]))
fillet.Radius = 5

doc.recompute()
